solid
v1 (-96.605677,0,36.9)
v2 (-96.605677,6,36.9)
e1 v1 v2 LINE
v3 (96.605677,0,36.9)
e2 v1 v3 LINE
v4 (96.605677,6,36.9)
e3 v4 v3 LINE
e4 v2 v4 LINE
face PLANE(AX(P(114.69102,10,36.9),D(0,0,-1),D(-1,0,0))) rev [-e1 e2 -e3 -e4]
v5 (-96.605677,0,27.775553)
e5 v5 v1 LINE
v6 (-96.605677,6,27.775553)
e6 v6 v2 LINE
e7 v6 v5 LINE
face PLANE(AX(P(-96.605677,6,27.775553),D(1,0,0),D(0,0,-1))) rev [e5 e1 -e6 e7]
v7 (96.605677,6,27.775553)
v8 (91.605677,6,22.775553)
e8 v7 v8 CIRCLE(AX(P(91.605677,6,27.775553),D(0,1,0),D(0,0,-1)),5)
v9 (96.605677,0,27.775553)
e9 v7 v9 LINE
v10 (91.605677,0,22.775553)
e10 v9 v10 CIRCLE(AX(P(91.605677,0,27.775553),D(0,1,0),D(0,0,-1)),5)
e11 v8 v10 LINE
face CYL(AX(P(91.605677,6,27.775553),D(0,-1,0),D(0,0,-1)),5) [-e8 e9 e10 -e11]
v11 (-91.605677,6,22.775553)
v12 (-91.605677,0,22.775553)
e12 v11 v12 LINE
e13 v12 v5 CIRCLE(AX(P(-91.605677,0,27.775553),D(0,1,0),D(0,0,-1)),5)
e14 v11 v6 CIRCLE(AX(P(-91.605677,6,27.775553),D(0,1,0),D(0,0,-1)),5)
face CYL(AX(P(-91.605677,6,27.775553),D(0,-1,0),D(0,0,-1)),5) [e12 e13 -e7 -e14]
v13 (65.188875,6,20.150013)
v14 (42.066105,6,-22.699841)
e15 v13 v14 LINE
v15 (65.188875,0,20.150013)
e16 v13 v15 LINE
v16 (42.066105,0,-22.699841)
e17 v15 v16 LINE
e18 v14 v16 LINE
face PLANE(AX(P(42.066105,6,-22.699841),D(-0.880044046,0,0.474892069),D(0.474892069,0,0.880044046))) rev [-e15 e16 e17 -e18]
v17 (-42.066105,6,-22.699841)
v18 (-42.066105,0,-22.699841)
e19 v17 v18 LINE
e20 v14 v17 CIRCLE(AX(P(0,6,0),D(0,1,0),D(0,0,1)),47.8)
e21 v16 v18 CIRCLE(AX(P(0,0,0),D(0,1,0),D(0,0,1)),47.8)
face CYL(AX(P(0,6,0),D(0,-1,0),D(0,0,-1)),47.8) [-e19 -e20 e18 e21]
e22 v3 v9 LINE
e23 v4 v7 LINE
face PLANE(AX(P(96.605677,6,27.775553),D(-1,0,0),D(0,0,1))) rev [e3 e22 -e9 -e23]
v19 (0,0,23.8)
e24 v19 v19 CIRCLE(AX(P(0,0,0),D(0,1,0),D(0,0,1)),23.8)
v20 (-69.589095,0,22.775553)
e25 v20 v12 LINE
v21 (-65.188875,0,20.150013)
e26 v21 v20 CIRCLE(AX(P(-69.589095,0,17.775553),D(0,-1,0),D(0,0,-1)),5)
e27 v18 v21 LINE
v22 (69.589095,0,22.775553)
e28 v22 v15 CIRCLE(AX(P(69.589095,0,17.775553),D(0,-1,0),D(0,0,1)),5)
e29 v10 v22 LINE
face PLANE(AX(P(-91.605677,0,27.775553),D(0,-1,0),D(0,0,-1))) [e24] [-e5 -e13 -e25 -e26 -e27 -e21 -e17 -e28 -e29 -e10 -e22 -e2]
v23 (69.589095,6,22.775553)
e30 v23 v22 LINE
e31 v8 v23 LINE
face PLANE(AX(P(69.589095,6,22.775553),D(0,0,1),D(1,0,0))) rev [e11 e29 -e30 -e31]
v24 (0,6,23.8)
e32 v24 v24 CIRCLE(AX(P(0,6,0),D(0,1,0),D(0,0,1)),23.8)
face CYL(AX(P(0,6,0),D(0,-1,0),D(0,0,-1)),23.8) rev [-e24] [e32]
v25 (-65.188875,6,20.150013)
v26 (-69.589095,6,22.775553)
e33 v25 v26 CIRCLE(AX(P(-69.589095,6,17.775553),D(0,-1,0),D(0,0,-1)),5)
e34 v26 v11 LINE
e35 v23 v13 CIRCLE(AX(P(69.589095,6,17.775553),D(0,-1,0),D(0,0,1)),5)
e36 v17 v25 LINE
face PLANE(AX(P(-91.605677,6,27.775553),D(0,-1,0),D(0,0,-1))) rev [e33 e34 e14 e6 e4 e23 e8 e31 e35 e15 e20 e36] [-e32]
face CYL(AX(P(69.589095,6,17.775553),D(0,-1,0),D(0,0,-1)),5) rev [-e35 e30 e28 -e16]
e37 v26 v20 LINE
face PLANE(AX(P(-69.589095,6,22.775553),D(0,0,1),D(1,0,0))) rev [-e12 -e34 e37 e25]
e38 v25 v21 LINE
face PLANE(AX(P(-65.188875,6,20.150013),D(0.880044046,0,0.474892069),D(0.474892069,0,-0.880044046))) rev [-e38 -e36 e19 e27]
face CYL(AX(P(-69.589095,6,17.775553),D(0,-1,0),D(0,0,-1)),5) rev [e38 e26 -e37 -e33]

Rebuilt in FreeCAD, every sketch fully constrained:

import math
import FreeCAD as App
import Part
import Sketcher

doc = App.newDocument("Part")
params = doc.addObject("Spreadsheet::Sheet", "Params")
for row, (alias, value) in enumerate([
    ("sketch1_radius", "5 mm"),
    ("sketch1_diameter", "47.6 mm"),
    ("sketch1_radius2", "47.8 mm"),
    ("pad1_length", "6 mm"),
    ("pocket1_length", "10 mm"),
], start=1):
    params.set(f"A{row}", alias)
    params.set(f"B{row}", "=" + value)
    params.setAlias(f"B{row}", alias)

body = doc.addObject("PartDesign::Body", "Body")

# Sketch on XZ plane
sketch1 = body.newObject("Sketcher::SketchObject", "Sketch")
sketch1.AttachmentSupport = (doc.getObject("XZ_Plane"), [""])
sketch1.MapMode = "FlatFace"
sketch1.addGeometry([
    Part.LineSegment(App.Vector(-96.6, 27.8, 0), App.Vector(-96.6, 39.8, 0)),  # 0
    Part.LineSegment(App.Vector(-96.6, 39.8, 0), App.Vector(96.6, 39.8, 0)),  # 1
    Part.LineSegment(App.Vector(96.6, 39.8, 0), App.Vector(96.6, 27.8, 0)),  # 2
    Part.ArcOfCircle(Part.Circle(App.Vector(91.6, 27.8, 0), App.Vector(0, 0, 1), 5), math.radians(-90), math.radians(0)),  # 3
    Part.LineSegment(App.Vector(91.6, 22.8, 0), App.Vector(69.6, 22.8, 0)),  # 4
    Part.ArcOfCircle(Part.Circle(App.Vector(69.6, 17.8, 0), App.Vector(0, 0, 1), 5), math.radians(90), math.radians(152)),  # 5
    Part.LineSegment(App.Vector(65.2, 20.2, 0), App.Vector(42.1, -22.7, 0)),  # 6
    Part.ArcOfCircle(Part.Circle(App.Vector(0, 0, 0), App.Vector(0, 0, 1), 47.8), math.radians(-152), math.radians(-28)),  # 7
    Part.LineSegment(App.Vector(-42.1, -22.7, 0), App.Vector(-65.2, 20.2, 0)),  # 8
    Part.ArcOfCircle(Part.Circle(App.Vector(-69.6, 17.8, 0), App.Vector(0, 0, 1), 5), math.radians(28), math.radians(90)),  # 9
    Part.LineSegment(App.Vector(-69.6, 22.8, 0), App.Vector(-91.6, 22.8, 0)),  # 10
    Part.ArcOfCircle(Part.Circle(App.Vector(-91.6, 27.8, 0), App.Vector(0, 0, 1), 5), math.radians(-180), math.radians(-90)),  # 11
    Part.Circle(App.Vector(0, 0, 0), App.Vector(0, 0, 1), 23.8),  # 12
], False)
sketch1.addConstraint([
    Sketcher.Constraint("Coincident", 0, 2, 1, 1),
    Sketcher.Constraint("Coincident", 1, 2, 2, 1),
    Sketcher.Constraint("Tangent", 2, 2, 3, 2),
    Sketcher.Constraint("Tangent", 3, 1, 4, 1),
    Sketcher.Constraint("Tangent", 4, 2, 5, 1),
    Sketcher.Constraint("Tangent", 5, 2, 6, 1),
    Sketcher.Constraint("Tangent", 6, 2, 7, 2),
    Sketcher.Constraint("Tangent", 7, 1, 8, 1),
    Sketcher.Constraint("Tangent", 8, 2, 9, 1),
    Sketcher.Constraint("Tangent", 9, 2, 10, 1),
    Sketcher.Constraint("Tangent", 10, 2, 11, 2),
    Sketcher.Constraint("Tangent", 11, 1, 0, 1),
    Sketcher.Constraint("Vertical", 0),
    Sketcher.Constraint("Horizontal", 1),
    Sketcher.Constraint("Vertical", 2),
    Sketcher.Constraint("Horizontal", 4),
    Sketcher.Constraint("Horizontal", 10),
    Sketcher.Constraint("Coincident", 7, 3, -1, 1),
    Sketcher.Constraint("Coincident", 12, 3, -1, 1),
    Sketcher.Constraint("Equal", 3, 5),
    Sketcher.Constraint("Equal", 5, 9),
    Sketcher.Constraint("Equal", 9, 11),
    Sketcher.Constraint("Symmetric", 5, 3, 9, 3, -2),
    Sketcher.Constraint("Equal", 4, 10),
    Sketcher.Constraint("Radius", 3, 5.0),
    Sketcher.Constraint("Diameter", 12, 47.6),
    Sketcher.Constraint("Radius", 7, 47.8),
    Sketcher.Constraint("DistanceY", -1, 1, 0, 2, 39.8),
    Sketcher.Constraint("DistanceX", 4, 2, 4, 1, 22.016582),
    Sketcher.Constraint("DistanceX", 5, 2, 3, 1, 26.416802),
    Sketcher.Constraint("Distance", 6, 48.690579),
])
sketch1.setExpression("Constraints[24]", "Params.sketch1_radius")
sketch1.setExpression("Constraints[25]", "Params.sketch1_diameter")
sketch1.setExpression("Constraints[26]", "Params.sketch1_radius2")
pad1 = body.newObject("PartDesign::Pad", "Pad")
pad1.Profile = sketch1
pad1.setExpression("Length", "Params.pad1_length")
pad1.Reversed = True

# Sketch on XZ plane
sketch2 = body.newObject("Sketcher::SketchObject", "Sketch001")
sketch2.AttachmentSupport = (doc.getObject("XZ_Plane"), [""])
sketch2.MapMode = "FlatFace"
sketch2.addGeometry([
    Part.LineSegment(App.Vector(-125, 46, 0), App.Vector(-125, 37, 0)),
    Part.LineSegment(App.Vector(-125, 37, 0), App.Vector(115, 37, 0)),
    Part.LineSegment(App.Vector(115, 37, 0), App.Vector(115, 46, 0)),
    Part.LineSegment(App.Vector(115, 46, 0), App.Vector(-125, 46, 0)),
], False)
sketch2.addConstraint([
    Sketcher.Constraint("Coincident", 0, 2, 1, 1),
    Sketcher.Constraint("Coincident", 1, 2, 2, 1),
    Sketcher.Constraint("Coincident", 2, 2, 3, 1),
    Sketcher.Constraint("Coincident", 3, 2, 0, 1),
    Sketcher.Constraint("Vertical", 0),
    Sketcher.Constraint("Horizontal", 1),
    Sketcher.Constraint("Vertical", 2),
    Sketcher.Constraint("Horizontal", 3),
    Sketcher.Constraint("DistanceY", -1, 1, 0, 2, 36.9),
    Sketcher.Constraint("DistanceX", 1, 1, 1, 2, 239.918852),
    Sketcher.Constraint("DistanceY", 0, 2, 0, 1, 8.691365),
    Sketcher.Constraint("DistanceX", 0, 2, -1, 1, 125.227831),
])
pocket1 = body.newObject("PartDesign::Pocket", "Pocket")
pocket1.Profile = sketch2
pocket1.setExpression("Length", "Params.pocket1_length")

doc.recompute()
